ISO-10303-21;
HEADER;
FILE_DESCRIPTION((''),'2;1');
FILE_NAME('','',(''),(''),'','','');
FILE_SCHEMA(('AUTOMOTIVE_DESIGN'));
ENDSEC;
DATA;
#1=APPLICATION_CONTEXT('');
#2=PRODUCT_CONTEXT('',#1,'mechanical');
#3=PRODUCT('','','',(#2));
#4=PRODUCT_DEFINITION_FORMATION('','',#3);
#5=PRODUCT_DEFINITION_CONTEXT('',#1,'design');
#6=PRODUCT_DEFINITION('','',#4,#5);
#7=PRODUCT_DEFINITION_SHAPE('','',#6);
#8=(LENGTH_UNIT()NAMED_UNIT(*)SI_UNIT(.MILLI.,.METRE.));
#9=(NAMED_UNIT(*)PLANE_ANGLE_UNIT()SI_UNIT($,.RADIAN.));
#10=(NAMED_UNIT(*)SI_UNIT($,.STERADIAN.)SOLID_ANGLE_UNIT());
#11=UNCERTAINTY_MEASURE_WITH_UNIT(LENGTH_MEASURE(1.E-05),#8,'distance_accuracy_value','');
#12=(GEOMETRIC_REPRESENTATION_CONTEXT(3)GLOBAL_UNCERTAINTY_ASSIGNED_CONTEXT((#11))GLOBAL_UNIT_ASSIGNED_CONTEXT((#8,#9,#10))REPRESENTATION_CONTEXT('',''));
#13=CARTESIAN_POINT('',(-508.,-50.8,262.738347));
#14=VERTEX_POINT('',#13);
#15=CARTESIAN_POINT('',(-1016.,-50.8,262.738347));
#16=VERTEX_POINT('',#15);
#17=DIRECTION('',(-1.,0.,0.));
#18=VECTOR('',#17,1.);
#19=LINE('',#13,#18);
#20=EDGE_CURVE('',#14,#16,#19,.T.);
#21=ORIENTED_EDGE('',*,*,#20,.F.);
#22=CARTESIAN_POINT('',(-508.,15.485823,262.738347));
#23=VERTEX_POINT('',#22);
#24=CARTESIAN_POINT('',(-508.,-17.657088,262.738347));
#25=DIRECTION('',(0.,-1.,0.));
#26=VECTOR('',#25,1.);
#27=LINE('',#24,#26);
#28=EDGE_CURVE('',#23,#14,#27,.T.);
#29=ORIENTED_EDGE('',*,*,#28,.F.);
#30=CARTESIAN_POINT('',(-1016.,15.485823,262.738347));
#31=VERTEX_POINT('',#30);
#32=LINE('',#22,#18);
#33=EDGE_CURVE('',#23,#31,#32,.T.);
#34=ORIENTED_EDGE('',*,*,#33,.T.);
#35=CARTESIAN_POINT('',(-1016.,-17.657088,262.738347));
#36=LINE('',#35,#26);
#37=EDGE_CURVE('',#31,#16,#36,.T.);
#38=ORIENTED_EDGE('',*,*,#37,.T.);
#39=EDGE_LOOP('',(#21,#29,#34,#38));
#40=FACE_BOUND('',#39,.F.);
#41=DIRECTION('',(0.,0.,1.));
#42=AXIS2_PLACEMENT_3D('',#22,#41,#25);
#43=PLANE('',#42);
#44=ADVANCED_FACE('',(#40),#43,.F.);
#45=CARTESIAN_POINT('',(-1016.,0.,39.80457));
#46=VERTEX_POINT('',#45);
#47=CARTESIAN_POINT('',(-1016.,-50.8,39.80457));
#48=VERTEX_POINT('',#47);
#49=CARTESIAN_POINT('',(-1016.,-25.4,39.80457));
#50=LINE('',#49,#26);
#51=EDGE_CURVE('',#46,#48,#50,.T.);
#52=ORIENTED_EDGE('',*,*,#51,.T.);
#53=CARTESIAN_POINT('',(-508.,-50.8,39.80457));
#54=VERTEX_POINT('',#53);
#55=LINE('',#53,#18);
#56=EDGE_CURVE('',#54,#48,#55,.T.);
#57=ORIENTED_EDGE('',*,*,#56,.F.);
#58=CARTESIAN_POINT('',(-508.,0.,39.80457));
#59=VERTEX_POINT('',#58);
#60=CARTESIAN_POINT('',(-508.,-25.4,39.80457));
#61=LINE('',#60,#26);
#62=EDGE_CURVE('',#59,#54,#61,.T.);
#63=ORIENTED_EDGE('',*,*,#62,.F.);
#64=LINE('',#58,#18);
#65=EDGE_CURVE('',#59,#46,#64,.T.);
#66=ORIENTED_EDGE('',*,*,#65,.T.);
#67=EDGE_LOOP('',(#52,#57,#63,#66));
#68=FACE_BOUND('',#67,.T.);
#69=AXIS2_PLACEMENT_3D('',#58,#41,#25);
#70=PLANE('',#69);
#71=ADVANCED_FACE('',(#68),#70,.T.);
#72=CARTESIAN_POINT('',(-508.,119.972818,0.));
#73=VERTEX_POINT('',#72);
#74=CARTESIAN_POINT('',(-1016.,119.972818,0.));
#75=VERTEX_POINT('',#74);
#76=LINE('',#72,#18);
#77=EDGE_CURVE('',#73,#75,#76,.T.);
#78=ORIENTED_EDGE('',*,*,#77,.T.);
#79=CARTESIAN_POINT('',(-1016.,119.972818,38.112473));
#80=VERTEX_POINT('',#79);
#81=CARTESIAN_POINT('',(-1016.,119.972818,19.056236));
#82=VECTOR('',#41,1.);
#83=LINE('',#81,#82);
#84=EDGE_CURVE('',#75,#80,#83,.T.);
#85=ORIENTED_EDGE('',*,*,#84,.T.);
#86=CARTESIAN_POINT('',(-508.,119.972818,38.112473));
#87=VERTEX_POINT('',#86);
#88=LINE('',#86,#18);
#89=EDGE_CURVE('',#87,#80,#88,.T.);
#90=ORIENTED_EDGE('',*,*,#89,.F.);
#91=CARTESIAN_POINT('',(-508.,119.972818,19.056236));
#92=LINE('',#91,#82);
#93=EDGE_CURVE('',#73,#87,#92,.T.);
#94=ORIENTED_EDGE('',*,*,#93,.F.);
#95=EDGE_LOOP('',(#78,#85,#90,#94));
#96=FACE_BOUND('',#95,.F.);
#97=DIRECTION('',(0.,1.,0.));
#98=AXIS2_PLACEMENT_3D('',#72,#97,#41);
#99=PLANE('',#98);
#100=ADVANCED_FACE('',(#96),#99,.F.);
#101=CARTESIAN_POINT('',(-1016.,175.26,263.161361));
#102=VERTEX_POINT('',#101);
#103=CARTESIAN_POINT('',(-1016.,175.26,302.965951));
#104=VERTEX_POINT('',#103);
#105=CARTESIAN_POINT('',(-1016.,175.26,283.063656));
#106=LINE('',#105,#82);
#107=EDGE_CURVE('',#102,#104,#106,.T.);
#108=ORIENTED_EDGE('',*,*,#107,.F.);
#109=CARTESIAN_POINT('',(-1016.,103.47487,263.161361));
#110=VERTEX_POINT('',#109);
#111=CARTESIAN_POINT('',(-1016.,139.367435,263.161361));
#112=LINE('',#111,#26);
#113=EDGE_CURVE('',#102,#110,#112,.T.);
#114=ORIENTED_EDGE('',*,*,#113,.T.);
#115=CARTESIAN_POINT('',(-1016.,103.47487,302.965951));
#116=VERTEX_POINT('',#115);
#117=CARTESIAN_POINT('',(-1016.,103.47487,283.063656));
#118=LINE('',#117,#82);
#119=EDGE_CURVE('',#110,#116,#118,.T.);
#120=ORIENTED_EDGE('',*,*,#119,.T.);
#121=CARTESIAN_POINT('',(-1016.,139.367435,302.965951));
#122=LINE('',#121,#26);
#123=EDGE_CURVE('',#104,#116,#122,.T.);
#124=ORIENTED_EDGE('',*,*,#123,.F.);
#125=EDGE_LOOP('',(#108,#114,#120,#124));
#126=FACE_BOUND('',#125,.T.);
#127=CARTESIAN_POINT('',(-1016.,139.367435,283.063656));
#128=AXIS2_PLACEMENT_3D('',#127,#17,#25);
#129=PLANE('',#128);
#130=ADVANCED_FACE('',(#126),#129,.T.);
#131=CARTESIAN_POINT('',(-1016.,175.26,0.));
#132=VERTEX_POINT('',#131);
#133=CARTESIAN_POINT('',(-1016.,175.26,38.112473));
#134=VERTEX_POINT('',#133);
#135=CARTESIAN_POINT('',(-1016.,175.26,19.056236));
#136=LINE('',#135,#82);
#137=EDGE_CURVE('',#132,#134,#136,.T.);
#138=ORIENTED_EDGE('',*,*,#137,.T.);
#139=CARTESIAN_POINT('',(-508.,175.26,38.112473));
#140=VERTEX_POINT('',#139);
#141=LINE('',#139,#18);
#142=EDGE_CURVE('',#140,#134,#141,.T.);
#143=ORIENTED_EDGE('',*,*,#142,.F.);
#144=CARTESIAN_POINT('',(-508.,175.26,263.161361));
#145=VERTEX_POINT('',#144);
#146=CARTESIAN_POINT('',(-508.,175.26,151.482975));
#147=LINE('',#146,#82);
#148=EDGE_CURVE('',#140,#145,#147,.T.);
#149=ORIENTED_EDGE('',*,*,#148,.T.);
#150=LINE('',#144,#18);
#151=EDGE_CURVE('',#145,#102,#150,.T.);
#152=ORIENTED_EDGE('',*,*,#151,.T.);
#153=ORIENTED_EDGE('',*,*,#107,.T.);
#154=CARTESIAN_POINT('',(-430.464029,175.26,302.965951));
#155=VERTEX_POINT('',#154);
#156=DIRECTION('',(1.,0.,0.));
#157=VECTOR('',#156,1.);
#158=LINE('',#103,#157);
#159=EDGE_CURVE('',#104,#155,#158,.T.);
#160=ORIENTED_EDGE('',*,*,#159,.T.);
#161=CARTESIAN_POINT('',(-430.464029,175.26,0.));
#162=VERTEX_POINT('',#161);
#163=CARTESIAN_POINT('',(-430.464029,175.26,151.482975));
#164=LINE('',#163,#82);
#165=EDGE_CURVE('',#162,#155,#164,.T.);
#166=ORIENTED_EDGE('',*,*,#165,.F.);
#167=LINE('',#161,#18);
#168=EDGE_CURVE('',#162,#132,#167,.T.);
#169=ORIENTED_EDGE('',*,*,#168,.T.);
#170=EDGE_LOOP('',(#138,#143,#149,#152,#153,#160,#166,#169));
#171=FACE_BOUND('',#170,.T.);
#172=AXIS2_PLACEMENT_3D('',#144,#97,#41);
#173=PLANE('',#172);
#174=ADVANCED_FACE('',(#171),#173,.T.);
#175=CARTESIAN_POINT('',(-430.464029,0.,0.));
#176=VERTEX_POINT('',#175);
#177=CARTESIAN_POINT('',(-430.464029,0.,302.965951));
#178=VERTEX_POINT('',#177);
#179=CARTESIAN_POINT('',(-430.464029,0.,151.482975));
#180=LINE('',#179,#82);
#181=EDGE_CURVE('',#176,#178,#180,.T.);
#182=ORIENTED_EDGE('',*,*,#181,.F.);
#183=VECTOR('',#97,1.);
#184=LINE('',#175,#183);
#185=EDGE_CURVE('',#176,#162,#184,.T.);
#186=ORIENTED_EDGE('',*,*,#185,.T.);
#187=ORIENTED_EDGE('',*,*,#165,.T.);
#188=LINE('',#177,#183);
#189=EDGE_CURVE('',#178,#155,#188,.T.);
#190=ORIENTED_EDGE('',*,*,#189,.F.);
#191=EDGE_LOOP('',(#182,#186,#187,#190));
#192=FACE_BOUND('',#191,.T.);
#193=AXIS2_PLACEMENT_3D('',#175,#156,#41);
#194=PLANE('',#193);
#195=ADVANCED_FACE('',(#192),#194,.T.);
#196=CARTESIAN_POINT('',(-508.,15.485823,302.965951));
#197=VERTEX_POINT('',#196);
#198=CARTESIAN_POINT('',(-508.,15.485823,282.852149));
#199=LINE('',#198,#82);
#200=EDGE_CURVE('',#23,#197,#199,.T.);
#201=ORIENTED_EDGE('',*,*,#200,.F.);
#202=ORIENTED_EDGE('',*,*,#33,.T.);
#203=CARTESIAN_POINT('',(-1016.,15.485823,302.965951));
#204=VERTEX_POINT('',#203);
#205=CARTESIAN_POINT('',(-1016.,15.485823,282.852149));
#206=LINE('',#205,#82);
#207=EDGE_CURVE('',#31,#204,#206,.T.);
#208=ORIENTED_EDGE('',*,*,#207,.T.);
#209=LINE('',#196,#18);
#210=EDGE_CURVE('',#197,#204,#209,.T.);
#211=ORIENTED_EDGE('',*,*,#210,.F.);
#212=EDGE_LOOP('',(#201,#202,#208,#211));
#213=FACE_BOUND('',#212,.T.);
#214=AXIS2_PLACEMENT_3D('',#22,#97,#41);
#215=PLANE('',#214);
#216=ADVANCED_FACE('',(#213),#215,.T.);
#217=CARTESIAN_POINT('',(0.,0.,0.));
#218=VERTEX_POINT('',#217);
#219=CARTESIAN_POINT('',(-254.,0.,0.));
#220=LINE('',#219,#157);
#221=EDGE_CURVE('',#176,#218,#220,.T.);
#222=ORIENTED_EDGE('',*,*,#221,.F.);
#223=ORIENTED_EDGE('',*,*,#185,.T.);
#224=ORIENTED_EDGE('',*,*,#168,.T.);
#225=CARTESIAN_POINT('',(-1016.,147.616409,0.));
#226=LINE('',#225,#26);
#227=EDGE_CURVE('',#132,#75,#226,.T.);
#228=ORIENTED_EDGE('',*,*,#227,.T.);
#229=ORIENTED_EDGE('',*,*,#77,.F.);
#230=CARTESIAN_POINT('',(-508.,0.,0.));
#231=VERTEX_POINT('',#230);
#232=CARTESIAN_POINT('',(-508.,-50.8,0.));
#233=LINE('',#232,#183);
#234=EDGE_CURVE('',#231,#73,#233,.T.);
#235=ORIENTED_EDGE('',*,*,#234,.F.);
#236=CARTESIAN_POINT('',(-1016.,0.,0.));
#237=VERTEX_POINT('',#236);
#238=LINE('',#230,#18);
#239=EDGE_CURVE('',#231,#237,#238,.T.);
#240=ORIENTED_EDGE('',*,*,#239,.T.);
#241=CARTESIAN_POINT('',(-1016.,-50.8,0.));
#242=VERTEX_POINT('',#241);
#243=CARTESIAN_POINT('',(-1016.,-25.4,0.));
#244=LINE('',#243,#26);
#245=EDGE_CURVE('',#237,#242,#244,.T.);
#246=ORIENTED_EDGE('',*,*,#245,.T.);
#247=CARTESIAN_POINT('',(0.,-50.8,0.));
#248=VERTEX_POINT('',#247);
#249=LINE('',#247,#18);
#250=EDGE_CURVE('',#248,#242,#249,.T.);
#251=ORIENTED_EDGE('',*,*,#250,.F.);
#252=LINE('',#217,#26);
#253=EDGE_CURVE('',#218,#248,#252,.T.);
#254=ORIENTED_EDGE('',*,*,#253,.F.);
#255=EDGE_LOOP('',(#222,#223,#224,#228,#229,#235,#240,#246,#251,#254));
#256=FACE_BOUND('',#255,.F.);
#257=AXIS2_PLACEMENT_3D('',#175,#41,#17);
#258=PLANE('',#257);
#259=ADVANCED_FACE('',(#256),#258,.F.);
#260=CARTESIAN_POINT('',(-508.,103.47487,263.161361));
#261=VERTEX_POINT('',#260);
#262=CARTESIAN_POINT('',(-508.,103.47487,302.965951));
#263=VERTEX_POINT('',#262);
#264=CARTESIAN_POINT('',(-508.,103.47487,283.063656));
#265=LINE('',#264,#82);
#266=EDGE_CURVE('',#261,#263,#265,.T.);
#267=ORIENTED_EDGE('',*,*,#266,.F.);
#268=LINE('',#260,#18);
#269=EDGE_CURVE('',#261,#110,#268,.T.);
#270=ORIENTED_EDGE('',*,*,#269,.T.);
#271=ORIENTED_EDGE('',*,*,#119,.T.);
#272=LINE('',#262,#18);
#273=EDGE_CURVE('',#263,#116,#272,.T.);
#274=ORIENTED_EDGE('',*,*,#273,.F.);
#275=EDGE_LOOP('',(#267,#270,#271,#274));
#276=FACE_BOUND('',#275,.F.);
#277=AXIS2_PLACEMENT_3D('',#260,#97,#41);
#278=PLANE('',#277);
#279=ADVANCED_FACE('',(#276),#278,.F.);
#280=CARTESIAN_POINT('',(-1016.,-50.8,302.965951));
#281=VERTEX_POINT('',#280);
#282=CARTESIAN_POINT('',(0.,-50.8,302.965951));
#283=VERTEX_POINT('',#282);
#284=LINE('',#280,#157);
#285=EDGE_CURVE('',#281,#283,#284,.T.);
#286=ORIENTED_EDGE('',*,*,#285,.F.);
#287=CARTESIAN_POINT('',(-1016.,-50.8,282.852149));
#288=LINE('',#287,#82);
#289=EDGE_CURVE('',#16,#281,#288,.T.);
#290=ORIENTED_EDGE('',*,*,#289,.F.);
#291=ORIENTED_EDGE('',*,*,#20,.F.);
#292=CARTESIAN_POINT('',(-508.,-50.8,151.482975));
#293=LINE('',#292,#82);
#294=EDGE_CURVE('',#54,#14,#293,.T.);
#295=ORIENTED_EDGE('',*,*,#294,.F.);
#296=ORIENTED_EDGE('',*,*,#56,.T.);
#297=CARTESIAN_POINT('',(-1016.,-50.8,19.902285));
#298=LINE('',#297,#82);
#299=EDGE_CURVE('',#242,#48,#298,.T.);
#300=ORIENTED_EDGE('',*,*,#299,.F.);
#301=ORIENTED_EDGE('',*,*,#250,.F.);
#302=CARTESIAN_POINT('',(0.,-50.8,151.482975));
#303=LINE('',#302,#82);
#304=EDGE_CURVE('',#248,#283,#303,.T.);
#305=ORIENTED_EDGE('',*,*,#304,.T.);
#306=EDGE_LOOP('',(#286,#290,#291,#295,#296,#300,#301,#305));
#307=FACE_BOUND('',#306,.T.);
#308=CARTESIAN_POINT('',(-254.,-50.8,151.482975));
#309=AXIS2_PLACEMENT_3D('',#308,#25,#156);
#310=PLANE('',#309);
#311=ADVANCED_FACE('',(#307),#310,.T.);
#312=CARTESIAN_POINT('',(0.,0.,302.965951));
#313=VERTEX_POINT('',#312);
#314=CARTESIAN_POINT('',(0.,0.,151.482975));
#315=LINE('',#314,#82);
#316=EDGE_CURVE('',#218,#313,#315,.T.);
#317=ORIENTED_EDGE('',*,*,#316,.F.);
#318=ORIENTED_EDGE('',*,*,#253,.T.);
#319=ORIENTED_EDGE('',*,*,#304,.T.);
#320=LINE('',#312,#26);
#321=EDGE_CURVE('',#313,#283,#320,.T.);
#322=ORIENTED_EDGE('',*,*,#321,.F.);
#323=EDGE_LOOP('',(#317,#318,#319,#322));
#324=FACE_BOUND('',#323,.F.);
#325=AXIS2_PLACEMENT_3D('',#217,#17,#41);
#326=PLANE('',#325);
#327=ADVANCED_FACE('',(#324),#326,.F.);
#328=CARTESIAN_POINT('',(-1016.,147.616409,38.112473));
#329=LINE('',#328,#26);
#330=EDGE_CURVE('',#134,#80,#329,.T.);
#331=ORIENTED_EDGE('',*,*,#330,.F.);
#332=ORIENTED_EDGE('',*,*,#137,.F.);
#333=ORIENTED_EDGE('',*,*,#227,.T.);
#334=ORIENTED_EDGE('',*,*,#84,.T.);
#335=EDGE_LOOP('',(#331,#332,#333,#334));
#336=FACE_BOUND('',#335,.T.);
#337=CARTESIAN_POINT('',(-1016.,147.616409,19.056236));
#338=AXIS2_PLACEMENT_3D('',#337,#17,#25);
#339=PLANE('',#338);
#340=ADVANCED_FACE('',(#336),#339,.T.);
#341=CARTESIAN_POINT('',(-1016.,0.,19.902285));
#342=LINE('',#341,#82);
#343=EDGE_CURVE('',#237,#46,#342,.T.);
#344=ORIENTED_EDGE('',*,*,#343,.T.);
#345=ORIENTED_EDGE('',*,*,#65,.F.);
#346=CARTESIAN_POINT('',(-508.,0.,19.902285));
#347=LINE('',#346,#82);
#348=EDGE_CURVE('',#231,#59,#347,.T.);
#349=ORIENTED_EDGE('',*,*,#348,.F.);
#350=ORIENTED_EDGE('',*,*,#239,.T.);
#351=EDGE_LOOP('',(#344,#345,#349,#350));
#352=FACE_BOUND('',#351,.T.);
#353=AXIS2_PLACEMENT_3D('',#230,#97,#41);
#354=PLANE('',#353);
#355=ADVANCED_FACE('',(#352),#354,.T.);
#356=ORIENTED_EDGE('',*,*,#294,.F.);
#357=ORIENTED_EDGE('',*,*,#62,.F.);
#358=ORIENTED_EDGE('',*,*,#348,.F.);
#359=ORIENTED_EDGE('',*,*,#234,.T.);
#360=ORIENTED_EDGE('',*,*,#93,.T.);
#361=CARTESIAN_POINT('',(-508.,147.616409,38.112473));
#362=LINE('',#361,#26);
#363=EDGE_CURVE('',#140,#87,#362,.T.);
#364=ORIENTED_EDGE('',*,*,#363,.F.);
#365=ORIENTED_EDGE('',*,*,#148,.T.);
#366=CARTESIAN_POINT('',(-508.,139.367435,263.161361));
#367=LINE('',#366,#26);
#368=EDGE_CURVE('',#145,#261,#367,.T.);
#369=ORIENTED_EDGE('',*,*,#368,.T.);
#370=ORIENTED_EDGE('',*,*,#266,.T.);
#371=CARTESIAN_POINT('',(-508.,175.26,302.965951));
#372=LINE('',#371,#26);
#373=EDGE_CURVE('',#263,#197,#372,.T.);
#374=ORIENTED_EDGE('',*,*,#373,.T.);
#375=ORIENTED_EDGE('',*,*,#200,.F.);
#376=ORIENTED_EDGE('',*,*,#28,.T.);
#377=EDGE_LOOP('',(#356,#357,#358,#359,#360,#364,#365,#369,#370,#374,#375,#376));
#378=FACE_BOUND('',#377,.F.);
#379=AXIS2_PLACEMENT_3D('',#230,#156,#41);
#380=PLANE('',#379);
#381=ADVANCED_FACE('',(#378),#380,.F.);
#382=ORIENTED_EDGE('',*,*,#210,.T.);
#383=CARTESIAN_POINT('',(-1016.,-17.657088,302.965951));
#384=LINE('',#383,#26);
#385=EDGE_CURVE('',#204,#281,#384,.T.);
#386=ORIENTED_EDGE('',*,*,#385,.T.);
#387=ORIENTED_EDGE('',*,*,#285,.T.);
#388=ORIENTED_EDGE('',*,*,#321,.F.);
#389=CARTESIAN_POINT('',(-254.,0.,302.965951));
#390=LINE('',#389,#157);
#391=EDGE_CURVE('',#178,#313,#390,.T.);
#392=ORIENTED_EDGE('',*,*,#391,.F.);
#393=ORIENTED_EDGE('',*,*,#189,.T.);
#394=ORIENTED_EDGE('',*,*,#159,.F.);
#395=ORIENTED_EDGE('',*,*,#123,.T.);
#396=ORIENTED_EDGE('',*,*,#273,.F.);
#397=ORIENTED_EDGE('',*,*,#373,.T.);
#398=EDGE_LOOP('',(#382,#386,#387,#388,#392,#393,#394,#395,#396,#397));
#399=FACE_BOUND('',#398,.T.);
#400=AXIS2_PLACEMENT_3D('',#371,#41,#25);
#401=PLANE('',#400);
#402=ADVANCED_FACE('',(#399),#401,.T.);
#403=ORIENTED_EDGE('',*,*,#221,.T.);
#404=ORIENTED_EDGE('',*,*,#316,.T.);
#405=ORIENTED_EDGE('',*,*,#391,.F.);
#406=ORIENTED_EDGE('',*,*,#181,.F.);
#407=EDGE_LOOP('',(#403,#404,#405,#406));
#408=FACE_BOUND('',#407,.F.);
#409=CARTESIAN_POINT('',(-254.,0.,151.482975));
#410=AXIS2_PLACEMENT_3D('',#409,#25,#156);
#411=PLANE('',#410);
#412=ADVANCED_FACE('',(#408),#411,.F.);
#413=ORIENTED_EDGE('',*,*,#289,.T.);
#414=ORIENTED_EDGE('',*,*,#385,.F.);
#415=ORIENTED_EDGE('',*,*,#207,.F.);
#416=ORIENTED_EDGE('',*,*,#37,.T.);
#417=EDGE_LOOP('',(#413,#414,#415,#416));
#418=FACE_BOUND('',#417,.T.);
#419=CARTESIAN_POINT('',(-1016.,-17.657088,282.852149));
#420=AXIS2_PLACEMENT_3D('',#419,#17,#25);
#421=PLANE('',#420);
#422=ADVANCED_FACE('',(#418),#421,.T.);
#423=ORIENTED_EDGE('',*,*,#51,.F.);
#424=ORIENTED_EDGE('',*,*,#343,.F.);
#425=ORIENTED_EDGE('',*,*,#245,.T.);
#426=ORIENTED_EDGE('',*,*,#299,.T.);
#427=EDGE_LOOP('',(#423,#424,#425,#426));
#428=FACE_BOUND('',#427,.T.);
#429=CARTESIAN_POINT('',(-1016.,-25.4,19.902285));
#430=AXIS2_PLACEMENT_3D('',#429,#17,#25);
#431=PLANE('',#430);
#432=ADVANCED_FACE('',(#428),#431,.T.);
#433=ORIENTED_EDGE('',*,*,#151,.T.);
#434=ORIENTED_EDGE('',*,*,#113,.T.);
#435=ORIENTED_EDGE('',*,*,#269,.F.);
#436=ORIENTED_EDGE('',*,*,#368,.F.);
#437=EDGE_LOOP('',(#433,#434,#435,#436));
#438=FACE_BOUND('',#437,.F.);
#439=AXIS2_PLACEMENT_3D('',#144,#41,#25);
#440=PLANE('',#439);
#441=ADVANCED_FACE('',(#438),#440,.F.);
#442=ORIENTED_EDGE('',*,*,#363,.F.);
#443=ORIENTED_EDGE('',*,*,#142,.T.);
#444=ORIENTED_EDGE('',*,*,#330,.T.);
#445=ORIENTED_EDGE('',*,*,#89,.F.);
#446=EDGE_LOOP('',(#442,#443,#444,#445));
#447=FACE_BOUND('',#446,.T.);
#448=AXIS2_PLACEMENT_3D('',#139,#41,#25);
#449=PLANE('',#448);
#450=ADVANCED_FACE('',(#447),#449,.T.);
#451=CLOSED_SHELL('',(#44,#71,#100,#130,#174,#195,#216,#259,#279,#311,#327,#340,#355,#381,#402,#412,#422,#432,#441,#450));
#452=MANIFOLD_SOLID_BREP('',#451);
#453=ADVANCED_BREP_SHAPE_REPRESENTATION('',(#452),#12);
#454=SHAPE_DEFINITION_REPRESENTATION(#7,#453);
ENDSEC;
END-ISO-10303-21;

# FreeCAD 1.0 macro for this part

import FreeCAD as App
import Part
import Sketcher

V = App.Vector
Q = App.Units.Quantity


def add_polygon(sketch, points):
    """Adds a closed chain of lines whose ends are joined by coincident constraints."""
    first, n = sketch.GeometryCount, len(points)
    for a, b in zip(points, points[1:] + points[:1]):
        sketch.addGeometry(Part.LineSegment(App.Vector(*a, 0), App.Vector(*b, 0)), False)
    for i in range(n):
        sketch.addConstraint(Sketcher.Constraint("Coincident", first + i, 2, first + (i + 1) % n, 1))

doc = App.newDocument("Part")
body = doc.addObject("PartDesign::Body", "Body")

# Sketch on XZ plane
sketch1 = doc.addObject("Sketcher::SketchObject", "Sketch")
body.addObject(sketch1)
sketch1.AttachmentSupport = (doc.XZ_Plane, [""])
sketch1.MapMode = "FlatFace"
add_polygon(sketch1, [(-508, 302.965951), (-508, 0), (0, 0), (0, 302.965951)])  # lines 0-3
sketch1.addConstraint([
    Sketcher.Constraint("Vertical", 0),
    Sketcher.Constraint("Horizontal", 1),
    Sketcher.Constraint("Vertical", 2),
    Sketcher.Constraint("Horizontal", 3),
    Sketcher.Constraint("Coincident", 1, 2, -1, 1),
    Sketcher.Constraint("DistanceX", 1, 1, 1, 2, Q("20 in")),
    Sketcher.Constraint("DistanceY", 0, 2, 0, 1, Q("302.965951 mm")),
])
pad1 = doc.addObject("PartDesign::Pad", "Pad")
body.addObject(pad1)
pad1.Profile = sketch1
pad1.Length = Q("2 in")

# Sketch on XZ plane
sketch2 = doc.addObject("Sketcher::SketchObject", "Sketch001")
body.addObject(sketch2)
sketch2.AttachmentSupport = (doc.XZ_Plane, [""])
sketch2.MapMode = "FlatFace"
add_polygon(sketch2, [(-430.464029, 302.965951), (-430.464029, 0), (-508, 0), (-508, 302.965951)])  # lines 0-3
sketch2.addConstraint([
    Sketcher.Constraint("Vertical", 0),
    Sketcher.Constraint("Horizontal", 1),
    Sketcher.Constraint("Vertical", 2),
    Sketcher.Constraint("Horizontal", 3),
    Sketcher.Constraint("PointOnObject", 0, 2, -1),
    Sketcher.Constraint("DistanceX", 1, 2, -1, 1, Q("20 in")),
    Sketcher.Constraint("DistanceX", 1, 2, 1, 1, Q("77.535971 mm")),
    Sketcher.Constraint("DistanceY", 0, 2, 0, 1, Q("302.965951 mm")),
])
pad2 = doc.addObject("PartDesign::Pad", "Pad001")
body.addObject(pad2)
pad2.Profile = sketch2
pad2.Length = Q("6.9 in")
pad2.Reversed = True

# Sketch on YZ plane
sketch3 = doc.addObject("Sketcher::SketchObject", "Sketch002")
body.addObject(sketch3)
sketch3.AttachmentSupport = (doc.YZ_Plane, [""])
sketch3.MapMode = "FlatFace"
sketch3.AttachmentOffset = App.Placement(V(0, 0, -20 * 25.4), App.Rotation())
add_polygon(sketch3, [(175.26, 302.965951), (175.26, 263.161361), (103.47487, 263.161361), (103.47487, 302.965951)])  # lines 0-3
add_polygon(sketch3, [(0, 39.80457), (0, 0), (-50.8, 0), (-50.8, 39.80457)])  # lines 4-7
add_polygon(sketch3, [(175.26, 38.112473), (175.26, 0), (119.972818, 0), (119.972818, 38.112473)])  # lines 8-11
add_polygon(sketch3, [(15.485823, 302.965951), (15.485823, 262.738347), (-50.8, 262.738347), (-50.8, 302.965951)])  # lines 12-15
sketch3.addConstraint([
    Sketcher.Constraint("Vertical", 0),
    Sketcher.Constraint("Horizontal", 1),
    Sketcher.Constraint("Vertical", 2),
    Sketcher.Constraint("Horizontal", 3),
    Sketcher.Constraint("Vertical", 4),
    Sketcher.Constraint("Horizontal", 5),
    Sketcher.Constraint("Vertical", 6),
    Sketcher.Constraint("Horizontal", 7),
    Sketcher.Constraint("Vertical", 8),
    Sketcher.Constraint("Horizontal", 9),
    Sketcher.Constraint("Vertical", 10),
    Sketcher.Constraint("Horizontal", 11),
    Sketcher.Constraint("Vertical", 12),
    Sketcher.Constraint("Horizontal", 13),
    Sketcher.Constraint("Vertical", 14),
    Sketcher.Constraint("Horizontal", 15),
    Sketcher.Constraint("Coincident", 4, 2, -1, 1),
    Sketcher.Constraint("PointOnObject", 8, 2, -1),
    Sketcher.Constraint("Horizontal", 3, 2, 14, 2),
    Sketcher.Constraint("Vertical", 3, 2, 8, 2),
    Sketcher.Constraint("Vertical", 6, 2, 13, 2),
    Sketcher.Constraint("DistanceX", 5, 2, 5, 1, Q("2 in")),
    Sketcher.Constraint("DistanceX", -1, 1, 0, 2, Q("6.9 in")),
    Sketcher.Constraint("DistanceX", 1, 2, 1, 1, Q("71.78513 mm")),
    Sketcher.Constraint("DistanceY", 0, 2, 0, 1, Q("39.80459 mm")),
    Sketcher.Constraint("DistanceY", 4, 2, 4, 1, Q("39.80457 mm")),
    Sketcher.Constraint("DistanceX", 9, 2, 9, 1, Q("55.287182 mm")),
    Sketcher.Constraint("DistanceX", 13, 2, 13, 1, Q("66.285823 mm")),
    Sketcher.Constraint("DistanceY", 8, 2, 8, 1, Q("38.112473 mm")),
    Sketcher.Constraint("DistanceY", 12, 2, 12, 1, Q("40.227604 mm")),
    Sketcher.Constraint("DistanceY", -1, 1, 0, 2, Q("263.161361 mm")),
])
pad3 = doc.addObject("PartDesign::Pad", "Pad002")
body.addObject(pad3)
pad3.Profile = sketch3
pad3.Length = Q("20 in")
pad3.Reversed = True

doc.recompute()
